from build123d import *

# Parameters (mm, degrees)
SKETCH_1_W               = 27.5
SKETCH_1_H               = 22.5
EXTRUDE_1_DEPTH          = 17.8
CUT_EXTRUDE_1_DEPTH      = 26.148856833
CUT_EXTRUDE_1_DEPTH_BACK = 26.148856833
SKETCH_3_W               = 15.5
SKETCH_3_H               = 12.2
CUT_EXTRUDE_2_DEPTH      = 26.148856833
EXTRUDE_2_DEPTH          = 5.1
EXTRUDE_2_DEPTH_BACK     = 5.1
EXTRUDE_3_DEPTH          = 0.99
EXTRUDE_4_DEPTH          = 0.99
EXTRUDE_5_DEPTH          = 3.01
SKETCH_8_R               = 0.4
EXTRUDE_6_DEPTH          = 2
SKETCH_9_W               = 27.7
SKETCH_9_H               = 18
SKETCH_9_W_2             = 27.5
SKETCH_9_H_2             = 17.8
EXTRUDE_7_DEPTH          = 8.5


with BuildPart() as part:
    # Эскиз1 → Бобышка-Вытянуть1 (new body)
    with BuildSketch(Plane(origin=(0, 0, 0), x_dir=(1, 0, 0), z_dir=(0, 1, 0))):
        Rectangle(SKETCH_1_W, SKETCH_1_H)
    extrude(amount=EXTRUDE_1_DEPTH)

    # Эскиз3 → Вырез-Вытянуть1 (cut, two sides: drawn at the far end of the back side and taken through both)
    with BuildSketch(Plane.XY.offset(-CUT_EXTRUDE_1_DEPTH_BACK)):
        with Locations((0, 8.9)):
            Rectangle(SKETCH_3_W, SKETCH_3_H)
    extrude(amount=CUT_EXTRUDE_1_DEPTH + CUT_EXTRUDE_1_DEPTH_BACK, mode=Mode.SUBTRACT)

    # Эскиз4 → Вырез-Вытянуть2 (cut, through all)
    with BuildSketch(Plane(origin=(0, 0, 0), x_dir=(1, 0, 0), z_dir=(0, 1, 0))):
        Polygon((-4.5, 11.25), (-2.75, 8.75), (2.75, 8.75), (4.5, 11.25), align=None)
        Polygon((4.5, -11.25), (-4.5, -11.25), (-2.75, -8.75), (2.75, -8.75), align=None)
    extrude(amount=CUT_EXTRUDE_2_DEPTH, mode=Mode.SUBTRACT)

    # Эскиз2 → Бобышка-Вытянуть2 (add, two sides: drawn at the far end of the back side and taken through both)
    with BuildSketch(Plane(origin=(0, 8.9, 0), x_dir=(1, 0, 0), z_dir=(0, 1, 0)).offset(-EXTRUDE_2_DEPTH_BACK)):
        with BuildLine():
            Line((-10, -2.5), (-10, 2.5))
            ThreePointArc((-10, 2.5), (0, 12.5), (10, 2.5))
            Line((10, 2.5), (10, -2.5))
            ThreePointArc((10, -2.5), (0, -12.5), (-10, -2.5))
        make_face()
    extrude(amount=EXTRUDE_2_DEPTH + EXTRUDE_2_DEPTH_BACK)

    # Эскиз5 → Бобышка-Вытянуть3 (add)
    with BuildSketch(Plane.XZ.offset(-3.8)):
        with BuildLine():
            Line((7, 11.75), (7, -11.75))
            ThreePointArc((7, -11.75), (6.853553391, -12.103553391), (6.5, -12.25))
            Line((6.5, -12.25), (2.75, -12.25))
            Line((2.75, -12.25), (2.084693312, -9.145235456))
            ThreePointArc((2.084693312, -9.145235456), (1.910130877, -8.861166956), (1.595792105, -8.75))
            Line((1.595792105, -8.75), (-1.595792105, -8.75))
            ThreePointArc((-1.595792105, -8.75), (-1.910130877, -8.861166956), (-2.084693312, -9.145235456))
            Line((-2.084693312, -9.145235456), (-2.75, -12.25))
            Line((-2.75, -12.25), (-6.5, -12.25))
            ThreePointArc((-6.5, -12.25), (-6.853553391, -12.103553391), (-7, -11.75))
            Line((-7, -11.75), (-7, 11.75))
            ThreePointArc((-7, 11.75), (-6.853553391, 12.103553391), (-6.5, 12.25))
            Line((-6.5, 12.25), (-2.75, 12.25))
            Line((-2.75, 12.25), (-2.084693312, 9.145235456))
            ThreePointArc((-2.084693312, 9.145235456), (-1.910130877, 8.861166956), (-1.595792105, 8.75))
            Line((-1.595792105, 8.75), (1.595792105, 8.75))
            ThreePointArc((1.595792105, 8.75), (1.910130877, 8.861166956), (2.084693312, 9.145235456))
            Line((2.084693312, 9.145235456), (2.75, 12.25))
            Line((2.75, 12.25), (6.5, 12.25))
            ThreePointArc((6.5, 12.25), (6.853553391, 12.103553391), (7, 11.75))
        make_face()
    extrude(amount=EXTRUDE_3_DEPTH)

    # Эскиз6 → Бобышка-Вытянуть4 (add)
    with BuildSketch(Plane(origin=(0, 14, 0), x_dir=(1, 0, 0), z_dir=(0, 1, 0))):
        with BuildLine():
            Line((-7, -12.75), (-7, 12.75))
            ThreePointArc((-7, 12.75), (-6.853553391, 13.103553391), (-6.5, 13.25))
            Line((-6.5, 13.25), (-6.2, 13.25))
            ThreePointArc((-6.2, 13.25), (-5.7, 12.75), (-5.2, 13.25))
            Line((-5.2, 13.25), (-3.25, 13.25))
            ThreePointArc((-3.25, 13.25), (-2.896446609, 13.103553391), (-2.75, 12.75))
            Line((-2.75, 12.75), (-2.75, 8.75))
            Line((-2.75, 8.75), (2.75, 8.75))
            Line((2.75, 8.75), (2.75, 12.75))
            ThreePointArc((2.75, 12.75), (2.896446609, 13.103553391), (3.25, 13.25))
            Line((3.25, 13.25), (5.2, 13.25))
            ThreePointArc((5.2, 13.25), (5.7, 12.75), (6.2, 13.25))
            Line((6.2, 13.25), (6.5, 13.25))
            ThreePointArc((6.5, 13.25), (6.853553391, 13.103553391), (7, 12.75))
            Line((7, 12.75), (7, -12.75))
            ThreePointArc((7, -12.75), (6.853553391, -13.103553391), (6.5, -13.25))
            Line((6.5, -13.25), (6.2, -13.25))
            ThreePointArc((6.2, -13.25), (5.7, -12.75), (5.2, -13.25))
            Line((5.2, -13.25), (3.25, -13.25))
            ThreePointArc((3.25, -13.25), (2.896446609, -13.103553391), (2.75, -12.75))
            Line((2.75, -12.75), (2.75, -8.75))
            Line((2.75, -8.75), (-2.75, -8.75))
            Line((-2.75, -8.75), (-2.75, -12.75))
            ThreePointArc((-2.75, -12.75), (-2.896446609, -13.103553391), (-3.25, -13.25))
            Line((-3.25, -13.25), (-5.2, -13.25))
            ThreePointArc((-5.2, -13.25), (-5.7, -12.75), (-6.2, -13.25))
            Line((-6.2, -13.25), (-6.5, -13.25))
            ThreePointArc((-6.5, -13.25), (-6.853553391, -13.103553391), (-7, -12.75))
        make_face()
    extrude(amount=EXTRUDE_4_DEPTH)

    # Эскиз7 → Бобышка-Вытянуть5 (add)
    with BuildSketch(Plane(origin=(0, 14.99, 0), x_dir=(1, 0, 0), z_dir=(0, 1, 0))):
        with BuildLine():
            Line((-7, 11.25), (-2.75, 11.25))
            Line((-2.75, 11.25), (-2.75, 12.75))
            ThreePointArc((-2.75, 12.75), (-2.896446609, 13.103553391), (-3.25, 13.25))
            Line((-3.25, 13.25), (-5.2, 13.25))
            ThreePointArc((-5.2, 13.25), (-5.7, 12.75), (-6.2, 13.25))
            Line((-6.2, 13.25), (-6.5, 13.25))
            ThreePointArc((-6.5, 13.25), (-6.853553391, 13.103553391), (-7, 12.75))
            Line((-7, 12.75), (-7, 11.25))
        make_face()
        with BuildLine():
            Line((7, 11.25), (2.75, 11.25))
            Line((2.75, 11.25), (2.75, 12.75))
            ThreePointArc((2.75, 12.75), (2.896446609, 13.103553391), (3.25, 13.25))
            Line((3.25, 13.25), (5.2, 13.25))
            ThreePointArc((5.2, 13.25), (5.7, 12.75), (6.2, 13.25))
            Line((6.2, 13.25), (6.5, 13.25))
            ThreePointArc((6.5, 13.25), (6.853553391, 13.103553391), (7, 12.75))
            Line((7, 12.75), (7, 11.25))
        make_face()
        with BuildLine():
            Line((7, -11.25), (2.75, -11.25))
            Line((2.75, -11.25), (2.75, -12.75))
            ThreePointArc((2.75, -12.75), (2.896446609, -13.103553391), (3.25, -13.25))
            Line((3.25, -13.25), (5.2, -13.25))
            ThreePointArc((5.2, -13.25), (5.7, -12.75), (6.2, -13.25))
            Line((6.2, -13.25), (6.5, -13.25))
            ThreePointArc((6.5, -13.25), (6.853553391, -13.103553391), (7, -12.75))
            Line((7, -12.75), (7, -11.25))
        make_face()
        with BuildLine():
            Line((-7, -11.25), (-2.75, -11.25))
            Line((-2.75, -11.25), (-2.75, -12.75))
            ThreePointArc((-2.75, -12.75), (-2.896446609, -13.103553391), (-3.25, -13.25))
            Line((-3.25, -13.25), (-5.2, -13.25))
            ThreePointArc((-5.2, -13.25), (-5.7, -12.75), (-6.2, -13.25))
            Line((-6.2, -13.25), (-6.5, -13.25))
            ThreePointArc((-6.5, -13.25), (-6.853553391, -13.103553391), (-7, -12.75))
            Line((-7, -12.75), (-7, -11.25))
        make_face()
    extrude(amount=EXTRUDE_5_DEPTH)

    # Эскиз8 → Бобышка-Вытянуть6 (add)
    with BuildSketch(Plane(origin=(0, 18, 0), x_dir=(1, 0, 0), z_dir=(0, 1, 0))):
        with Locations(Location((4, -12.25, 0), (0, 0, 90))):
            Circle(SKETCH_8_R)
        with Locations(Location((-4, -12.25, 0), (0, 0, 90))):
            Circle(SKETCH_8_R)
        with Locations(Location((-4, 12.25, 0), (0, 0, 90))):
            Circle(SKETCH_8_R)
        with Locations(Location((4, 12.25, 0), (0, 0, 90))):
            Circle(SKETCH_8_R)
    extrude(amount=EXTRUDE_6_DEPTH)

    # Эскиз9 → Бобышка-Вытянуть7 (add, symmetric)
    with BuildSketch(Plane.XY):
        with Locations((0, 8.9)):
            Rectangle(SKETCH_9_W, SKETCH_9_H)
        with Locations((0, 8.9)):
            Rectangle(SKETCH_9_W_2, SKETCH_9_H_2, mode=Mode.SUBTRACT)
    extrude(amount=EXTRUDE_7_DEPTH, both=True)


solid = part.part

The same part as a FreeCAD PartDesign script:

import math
import FreeCAD as App
import Part
import Sketcher
from FreeCAD import Vector
Q = App.Units.Quantity

doc = App.newDocument("Part")
params = doc.addObject("Spreadsheet::Sheet", "Params")
for row, (alias, value) in enumerate([
    ("sketch1_width", "27.5 mm"),
    ("sketch1_height", "22.5 mm"),
    ("pad1_length", "17.8 mm"),
    ("sketch2_width", "15.5 mm"),
    ("sketch2_height", "12.2 mm"),
    ("sketch3_width", "9 mm"),
    ("sketch3_width2", "5.5 mm"),
    ("sketch4_radius", "10 mm"),
    ("sketch4_height", "5 mm"),
    ("pad2_length", "5.1 mm"),
    ("pad2_length2", "5.1 mm"),
    ("sketch5_radius", "0.5 mm"),
    ("sketch5_height", "23.5 mm"),
    ("sketch5_width", "3.75 mm"),
    ("pad3_length", "0.99 mm"),
    ("sketch6_radius", "0.5 mm"),
    ("sketch6_height", "4 mm"),
    ("sketch6_width", "0.3 mm"),
    ("sketch6_width2", "5.5 mm"),
    ("sketch6_height2", "25.5 mm"),
    ("pad4_length", "0.99 mm"),
    ("sketch7_radius", "0.5 mm"),
    ("sketch7_width", "0.3 mm"),
    ("sketch7_height", "1.5 mm"),
    ("pad5_length", "3.01 mm"),
    ("sketch8_diameter", "0.8 mm"),
    ("pad6_length", "2 mm"),
    ("sketch9_height", "18 mm"),
    ("sketch9_width", "27.7 mm"),
    ("sketch9_width2", "27.5 mm"),
    ("sketch9_height2", "17.8 mm"),
    ("pad7_length", "17 mm"),
], start=1):
    params.set(f"A{row}", alias)
    params.set(f"B{row}", "=" + value)
    params.setAlias(f"B{row}", alias)

body = doc.addObject("PartDesign::Body", "Body")

# Sketch on XZ plane
sketch1 = doc.addObject("Sketcher::SketchObject", "Sketch")
body.addObject(sketch1)
sketch1.AttachmentSupport = (doc.XZ_Plane, [""])
sketch1.MapMode = "FlatFace"
sketch1.addGeometry(Part.LineSegment(Vector(-14, -11, 0), Vector(-14, 11, 0)), False)
sketch1.addGeometry(Part.LineSegment(Vector(-14, 11, 0), Vector(14, 11, 0)), False)
sketch1.addGeometry(Part.LineSegment(Vector(14, 11, 0), Vector(14, -11, 0)), False)
sketch1.addGeometry(Part.LineSegment(Vector(14, -11, 0), Vector(-14, -11, 0)), False)
sketch1.addConstraint(Sketcher.Constraint("Coincident", 0, 2, 1, 1))
sketch1.addConstraint(Sketcher.Constraint("Coincident", 1, 2, 2, 1))
sketch1.addConstraint(Sketcher.Constraint("Coincident", 2, 2, 3, 1))
sketch1.addConstraint(Sketcher.Constraint("Coincident", 3, 2, 0, 1))
sketch1.addConstraint(Sketcher.Constraint("Vertical", 0))
sketch1.addConstraint(Sketcher.Constraint("Horizontal", 1))
sketch1.addConstraint(Sketcher.Constraint("Vertical", 2))
sketch1.addConstraint(Sketcher.Constraint("Horizontal", 3))
sketch1.addConstraint(Sketcher.Constraint("Symmetric", 0, 2, 2, 2, -1, 1))
sketch1.addConstraint(Sketcher.Constraint("DistanceX", 1, 1, 1, 2, Q("27.5 mm")))
sketch1.addConstraint(Sketcher.Constraint("DistanceY", 0, 1, 0, 2, Q("22.5 mm")))
sketch1.setExpression("Constraints[9]", "Params.sketch1_width")
sketch1.setExpression("Constraints[10]", "Params.sketch1_height")
pad1 = doc.addObject("PartDesign::Pad", "Pad")
body.addObject(pad1)
pad1.Profile = sketch1
pad1.setExpression("Length", "Params.pad1_length")
pad1.Reversed = True

# Sketch on XY plane
sketch2 = doc.addObject("Sketcher::SketchObject", "Sketch001")
body.addObject(sketch2)
sketch2.AttachmentSupport = (doc.XY_Plane, [""])
sketch2.MapMode = "FlatFace"
sketch2.addGeometry(Part.LineSegment(Vector(-8, 15, 0), Vector(-8, 3, 0)), False)
sketch2.addGeometry(Part.LineSegment(Vector(-8, 3, 0), Vector(8, 3, 0)), False)
sketch2.addGeometry(Part.LineSegment(Vector(8, 3, 0), Vector(8, 15, 0)), False)
sketch2.addGeometry(Part.LineSegment(Vector(8, 15, 0), Vector(-8, 15, 0)), False)
sketch2.addConstraint(Sketcher.Constraint("Coincident", 0, 2, 1, 1))
sketch2.addConstraint(Sketcher.Constraint("Coincident", 1, 2, 2, 1))
sketch2.addConstraint(Sketcher.Constraint("Coincident", 2, 2, 3, 1))
sketch2.addConstraint(Sketcher.Constraint("Coincident", 3, 2, 0, 1))
sketch2.addConstraint(Sketcher.Constraint("Vertical", 0))
sketch2.addConstraint(Sketcher.Constraint("Horizontal", 1))
sketch2.addConstraint(Sketcher.Constraint("Vertical", 2))
sketch2.addConstraint(Sketcher.Constraint("Horizontal", 3))
sketch2.addConstraint(Sketcher.Constraint("DistanceX", 1, 1, 1, 2, Q("15.5 mm")))
sketch2.addConstraint(Sketcher.Constraint("DistanceY", 0, 2, 0, 1, Q("12.2 mm")))
sketch2.addConstraint(Sketcher.Constraint("DistanceY", -1, 1, 2, 2, Q("15 mm")))
sketch2.addConstraint(Sketcher.Constraint("DistanceX", 0, 2, -1, 1, Q("7.75 mm")))
sketch2.setExpression("Constraints[8]", "Params.sketch2_width")
sketch2.setExpression("Constraints[9]", "Params.sketch2_height")
pocket1 = doc.addObject("PartDesign::Pocket", "Pocket")
body.addObject(pocket1)
pocket1.Profile = sketch2
pocket1.Type = "ThroughAll"
pocket1.Midplane = True

# Sketch on XZ plane
sketch3 = doc.addObject("Sketcher::SketchObject", "Sketch002")
body.addObject(sketch3)
sketch3.AttachmentSupport = (doc.XZ_Plane, [""])
sketch3.MapMode = "FlatFace"
sketch3.addGeometry(Part.LineSegment(Vector(-4.5, -11.2, 0), Vector(-2.8, -8.8, 0)), False)
sketch3.addGeometry(Part.LineSegment(Vector(-2.8, -8.8, 0), Vector(2.8, -8.8, 0)), False)
sketch3.addGeometry(Part.LineSegment(Vector(2.8, -8.8, 0), Vector(4.5, -11.2, 0)), False)
sketch3.addGeometry(Part.LineSegment(Vector(4.5, -11.2, 0), Vector(-4.5, -11.2, 0)), False)
sketch3.addGeometry(Part.LineSegment(Vector(-4.5, 11.2, 0), Vector(4.5, 11.2, 0)), False)
sketch3.addGeometry(Part.LineSegment(Vector(4.5, 11.2, 0), Vector(2.8, 8.8, 0)), False)
sketch3.addGeometry(Part.LineSegment(Vector(2.8, 8.8, 0), Vector(-2.8, 8.8, 0)), False)
sketch3.addGeometry(Part.LineSegment(Vector(-2.8, 8.8, 0), Vector(-4.5, 11.2, 0)), False)
sketch3.addConstraint(Sketcher.Constraint("Coincident", 0, 2, 1, 1))
sketch3.addConstraint(Sketcher.Constraint("Coincident", 1, 2, 2, 1))
sketch3.addConstraint(Sketcher.Constraint("Coincident", 2, 2, 3, 1))
sketch3.addConstraint(Sketcher.Constraint("Coincident", 3, 2, 0, 1))
sketch3.addConstraint(Sketcher.Constraint("Coincident", 4, 2, 5, 1))
sketch3.addConstraint(Sketcher.Constraint("Coincident", 5, 2, 6, 1))
sketch3.addConstraint(Sketcher.Constraint("Coincident", 6, 2, 7, 1))
sketch3.addConstraint(Sketcher.Constraint("Coincident", 7, 2, 4, 1))
sketch3.addConstraint(Sketcher.Constraint("Horizontal", 1))
sketch3.addConstraint(Sketcher.Constraint("Horizontal", 3))
sketch3.addConstraint(Sketcher.Constraint("Horizontal", 4))
sketch3.addConstraint(Sketcher.Constraint("Horizontal", 6))
sketch3.addConstraint(Sketcher.Constraint("Symmetric", 3, 2, 4, 2, -1, 1))
sketch3.addConstraint(Sketcher.Constraint("Symmetric", 0, 2, 5, 2, -1, 1))
sketch3.addConstraint(Sketcher.Constraint("Parallel", 2, 7))
sketch3.addConstraint(Sketcher.Constraint("Vertical", 2, 2, 4, 2))
sketch3.addConstraint(Sketcher.Constraint("Vertical", 1, 2, 5, 2))
sketch3.addConstraint(Sketcher.Constraint("Vertical", 0, 2, 6, 2))
sketch3.addConstraint(Sketcher.Constraint("DistanceX", 3, 2, 3, 1, Q("9 mm")))
sketch3.addConstraint(Sketcher.Constraint("DistanceX", 1, 1, 1, 2, Q("5.5 mm")))
sketch3.addConstraint(Sketcher.Constraint("DistanceY", 1, 2, 4, 2, Q("20 mm")))
sketch3.addConstraint(Sketcher.Constraint("DistanceY", 2, 2, 1, 2, Q("2.5 mm")))
sketch3.setExpression("Constraints[18]", "Params.sketch3_width")
sketch3.setExpression("Constraints[19]", "Params.sketch3_width2")
pocket2 = doc.addObject("PartDesign::Pocket", "Pocket001")
body.addObject(pocket2)
pocket2.Profile = sketch3
pocket2.Type = "ThroughAll"

# Sketch on XZ plane
sketch4 = doc.addObject("Sketcher::SketchObject", "Sketch003")
body.addObject(sketch4)
sketch4.AttachmentSupport = (doc.XZ_Plane, [""])
sketch4.MapMode = "FlatFace"
sketch4.AttachmentOffset = App.Placement(Vector(0, 0, -8.9), App.Rotation())
sketch4.addGeometry(Part.LineSegment(Vector(-10, -2, 0), Vector(-10, 2, 0)), False)
sketch4.addGeometry(Part.ArcOfCircle(Part.Circle(Vector(0, 2, 0), Vector(0, 0, 1), 10), math.radians(0), math.radians(180)), False)
sketch4.addGeometry(Part.LineSegment(Vector(10, 2, 0), Vector(10, -2, 0)), False)
sketch4.addGeometry(Part.ArcOfCircle(Part.Circle(Vector(0, -2, 0), Vector(0, 0, 1), 10), math.radians(180), math.radians(360)), False)
sketch4.addConstraint(Sketcher.Constraint("Tangent", 0, 2, 1, 2))
sketch4.addConstraint(Sketcher.Constraint("Tangent", 1, 1, 2, 1))
sketch4.addConstraint(Sketcher.Constraint("Tangent", 2, 2, 3, 2))
sketch4.addConstraint(Sketcher.Constraint("Tangent", 3, 1, 0, 1))
sketch4.addConstraint(Sketcher.Constraint("Vertical", 0))
sketch4.addConstraint(Sketcher.Constraint("Vertical", 2))
sketch4.addConstraint(Sketcher.Constraint("Symmetric", 1, 3, 3, 3, -1, 1))
sketch4.addConstraint(Sketcher.Constraint("Radius", 1, Q("10 mm")))
sketch4.addConstraint(Sketcher.Constraint("DistanceY", 0, 1, 0, 2, Q("5 mm")))
sketch4.setExpression("Constraints[7]", "Params.sketch4_radius")
sketch4.setExpression("Constraints[8]", "Params.sketch4_height")
pad2 = doc.addObject("PartDesign::Pad", "Pad001")
body.addObject(pad2)
pad2.Profile = sketch4
pad2.Type = "TwoLengths"
pad2.setExpression("Length", "Params.pad2_length")
pad2.setExpression("Length2", "Params.pad2_length2")
pad2.Reversed = True

# Sketch on XZ plane
sketch5 = doc.addObject("Sketcher::SketchObject", "Sketch004")
body.addObject(sketch5)
sketch5.AttachmentSupport = (doc.XZ_Plane, [""])
sketch5.MapMode = "FlatFace"
sketch5.AttachmentOffset = App.Placement(Vector(0, 0, -3.8), App.Rotation())
sketch5.addGeometry(Part.LineSegment(Vector(7, -11.75, 0), Vector(7, 11.75, 0)), False)
sketch5.addGeometry(Part.ArcOfCircle(Part.Circle(Vector(6.5, 11.75, 0), Vector(0, 0, 1), 0.5), math.radians(0), math.radians(90)), False)
sketch5.addGeometry(Part.LineSegment(Vector(6.5, 12.25, 0), Vector(2.75, 12.25, 0)), False)
sketch5.addGeometry(Part.LineSegment(Vector(2.75, 12.25, 0), Vector(2.08, 9.15, 0)), False)
sketch5.addGeometry(Part.ArcOfCircle(Part.Circle(Vector(1.6, 9.25, 0), Vector(0, 0, 1), 0.5), math.radians(-90), math.radians(-12)), False)
sketch5.addGeometry(Part.LineSegment(Vector(1.6, 8.75, 0), Vector(-1.6, 8.75, 0)), False)
sketch5.addGeometry(Part.ArcOfCircle(Part.Circle(Vector(-1.6, 9.25, 0), Vector(0, 0, 1), 0.5), math.radians(-168), math.radians(-90)), False)
sketch5.addGeometry(Part.LineSegment(Vector(-2.08, 9.15, 0), Vector(-2.75, 12.25, 0)), False)
sketch5.addGeometry(Part.LineSegment(Vector(-2.75, 12.25, 0), Vector(-6.5, 12.25, 0)), False)
sketch5.addGeometry(Part.ArcOfCircle(Part.Circle(Vector(-6.5, 11.75, 0), Vector(0, 0, 1), 0.5), math.radians(90), math.radians(180)), False)
sketch5.addGeometry(Part.LineSegment(Vector(-7, 11.75, 0), Vector(-7, -11.75, 0)), False)
sketch5.addGeometry(Part.ArcOfCircle(Part.Circle(Vector(-6.5, -11.75, 0), Vector(0, 0, 1), 0.5), math.radians(180), math.radians(270)), False)
sketch5.addGeometry(Part.LineSegment(Vector(-6.5, -12.25, 0), Vector(-2.75, -12.25, 0)), False)
sketch5.addGeometry(Part.LineSegment(Vector(-2.75, -12.25, 0), Vector(-2.08, -9.15, 0)), False)
sketch5.addGeometry(Part.ArcOfCircle(Part.Circle(Vector(-1.6, -9.25, 0), Vector(0, 0, 1), 0.5), math.radians(90), math.radians(168)), False)
sketch5.addGeometry(Part.LineSegment(Vector(-1.6, -8.75, 0), Vector(1.6, -8.75, 0)), False)
sketch5.addGeometry(Part.ArcOfCircle(Part.Circle(Vector(1.6, -9.25, 0), Vector(0, 0, 1), 0.5), math.radians(12), math.radians(90)), False)
sketch5.addGeometry(Part.LineSegment(Vector(2.08, -9.15, 0), Vector(2.75, -12.25, 0)), False)
sketch5.addGeometry(Part.LineSegment(Vector(2.75, -12.25, 0), Vector(6.5, -12.25, 0)), False)
sketch5.addGeometry(Part.ArcOfCircle(Part.Circle(Vector(6.5, -11.75, 0), Vector(0, 0, 1), 0.5), math.radians(-90), math.radians(0)), False)
sketch5.addConstraint(Sketcher.Constraint("Tangent", 0, 2, 1, 1))
sketch5.addConstraint(Sketcher.Constraint("Tangent", 1, 2, 2, 1))
sketch5.addConstraint(Sketcher.Constraint("Coincident", 2, 2, 3, 1))
sketch5.addConstraint(Sketcher.Constraint("Tangent", 3, 2, 4, 2))
sketch5.addConstraint(Sketcher.Constraint("Tangent", 4, 1, 5, 1))
sketch5.addConstraint(Sketcher.Constraint("Tangent", 5, 2, 6, 2))
sketch5.addConstraint(Sketcher.Constraint("Tangent", 6, 1, 7, 1))
sketch5.addConstraint(Sketcher.Constraint("Coincident", 7, 2, 8, 1))
sketch5.addConstraint(Sketcher.Constraint("Tangent", 8, 2, 9, 1))
sketch5.addConstraint(Sketcher.Constraint("Tangent", 9, 2, 10, 1))
sketch5.addConstraint(Sketcher.Constraint("Tangent", 10, 2, 11, 1))
sketch5.addConstraint(Sketcher.Constraint("Tangent", 11, 2, 12, 1))
sketch5.addConstraint(Sketcher.Constraint("Coincident", 12, 2, 13, 1))
sketch5.addConstraint(Sketcher.Constraint("Tangent", 13, 2, 14, 2))
sketch5.addConstraint(Sketcher.Constraint("Tangent", 14, 1, 15, 1))
sketch5.addConstraint(Sketcher.Constraint("Tangent", 15, 2, 16, 2))
sketch5.addConstraint(Sketcher.Constraint("Tangent", 16, 1, 17, 1))
sketch5.addConstraint(Sketcher.Constraint("Coincident", 17, 2, 18, 1))
sketch5.addConstraint(Sketcher.Constraint("Tangent", 18, 2, 19, 1))
sketch5.addConstraint(Sketcher.Constraint("Tangent", 19, 2, 0, 1))
sketch5.addConstraint(Sketcher.Constraint("Vertical", 0))
sketch5.addConstraint(Sketcher.Constraint("Horizontal", 2))
sketch5.addConstraint(Sketcher.Constraint("Horizontal", 5))
sketch5.addConstraint(Sketcher.Constraint("Horizontal", 8))
sketch5.addConstraint(Sketcher.Constraint("Vertical", 10))
sketch5.addConstraint(Sketcher.Constraint("Horizontal", 12))
sketch5.addConstraint(Sketcher.Constraint("Horizontal", 15))
sketch5.addConstraint(Sketcher.Constraint("Horizontal", 18))
sketch5.addConstraint(Sketcher.Constraint("Equal", 1, 4))
sketch5.addConstraint(Sketcher.Constraint("Equal", 4, 6))
sketch5.addConstraint(Sketcher.Constraint("Equal", 6, 9))
sketch5.addConstraint(Sketcher.Constraint("Equal", 9, 11))
sketch5.addConstraint(Sketcher.Constraint("Equal", 11, 14))
sketch5.addConstraint(Sketcher.Constraint("Equal", 14, 16))
sketch5.addConstraint(Sketcher.Constraint("Equal", 16, 19))
sketch5.addConstraint(Sketcher.Constraint("Symmetric", 1, 3, 11, 3, -1, 1))
sketch5.addConstraint(Sketcher.Constraint("Symmetric", 4, 3, 14, 3, -1, 1))
sketch5.addConstraint(Sketcher.Constraint("Symmetric", 6, 1, 16, 1, -1, 1))
sketch5.addConstraint(Sketcher.Constraint("Symmetric", 3, 2, 6, 1, -2))
sketch5.addConstraint(Sketcher.Constraint("Symmetric", 12, 2, 17, 2, -2))
sketch5.addConstraint(Sketcher.Constraint("Horizontal", 1, 3, 9, 3))
sketch5.addConstraint(Sketcher.Constraint("Radius", 1, Q("0.5 mm")))
sketch5.addConstraint(Sketcher.Constraint("DistanceY", 0, 1, 0, 2, Q("23.5 mm")))
sketch5.addConstraint(Sketcher.Constraint("DistanceX", -1, 1, 0, 2, Q("7 mm")))
sketch5.addConstraint(Sketcher.Constraint("DistanceY", 11, 3, 6, 3, Q("21 mm")))
sketch5.addConstraint(Sketcher.Constraint("DistanceX", 2, 2, 2, 1, Q("3.75 mm")))
sketch5.addConstraint(Sketcher.Constraint("DistanceX", 4, 3, 3, 2, Q("0.488901 mm")))
sketch5.setExpression("Constraints[41]", "Params.sketch5_radius")
sketch5.setExpression("Constraints[42]", "Params.sketch5_height")
sketch5.setExpression("Constraints[45]", "Params.sketch5_width")
pad3 = doc.addObject("PartDesign::Pad", "Pad002")
body.addObject(pad3)
pad3.Profile = sketch5
pad3.setExpression("Length", "Params.pad3_length")

# Sketch on XZ plane
sketch6 = doc.addObject("Sketcher::SketchObject", "Sketch005")
body.addObject(sketch6)
sketch6.AttachmentSupport = (doc.XZ_Plane, [""])
sketch6.MapMode = "FlatFace"
sketch6.AttachmentOffset = App.Placement(Vector(0, 0, -14), App.Rotation())
sketch6.addGeometry(Part.LineSegment(Vector(-7, -12.75, 0), Vector(-7, 12.75, 0)), False)
sketch6.addGeometry(Part.ArcOfCircle(Part.Circle(Vector(-6.5, 12.75, 0), Vector(0, 0, 1), 0.5), math.radians(90), math.radians(180)), False)
sketch6.addGeometry(Part.LineSegment(Vector(-6.5, 13.25, 0), Vector(-6.2, 13.25, 0)), False)
sketch6.addGeometry(Part.ArcOfCircle(Part.Circle(Vector(-5.7, 13.25, 0), Vector(0, 0, 1), 0.5), math.radians(180), math.radians(360)), False)
sketch6.addGeometry(Part.LineSegment(Vector(-5.2, 13.25, 0), Vector(-3.25, 13.25, 0)), False)
sketch6.addGeometry(Part.ArcOfCircle(Part.Circle(Vector(-3.25, 12.75, 0), Vector(0, 0, 1), 0.5), math.radians(0), math.radians(90)), False)
sketch6.addGeometry(Part.LineSegment(Vector(-2.75, 12.75, 0), Vector(-2.75, 8.75, 0)), False)
sketch6.addGeometry(Part.LineSegment(Vector(-2.75, 8.75, 0), Vector(2.75, 8.75, 0)), False)
sketch6.addGeometry(Part.LineSegment(Vector(2.75, 8.75, 0), Vector(2.75, 12.75, 0)), False)
sketch6.addGeometry(Part.ArcOfCircle(Part.Circle(Vector(3.25, 12.75, 0), Vector(0, 0, 1), 0.5), math.radians(90), math.radians(180)), False)
sketch6.addGeometry(Part.LineSegment(Vector(3.25, 13.25, 0), Vector(5.2, 13.25, 0)), False)
sketch6.addGeometry(Part.ArcOfCircle(Part.Circle(Vector(5.7, 13.25, 0), Vector(0, 0, 1), 0.5), math.radians(180), math.radians(360)), False)
sketch6.addGeometry(Part.LineSegment(Vector(6.2, 13.25, 0), Vector(6.5, 13.25, 0)), False)
sketch6.addGeometry(Part.ArcOfCircle(Part.Circle(Vector(6.5, 12.75, 0), Vector(0, 0, 1), 0.5), math.radians(0), math.radians(90)), False)
sketch6.addGeometry(Part.LineSegment(Vector(7, 12.75, 0), Vector(7, -12.75, 0)), False)
sketch6.addGeometry(Part.ArcOfCircle(Part.Circle(Vector(6.5, -12.75, 0), Vector(0, 0, 1), 0.5), math.radians(-90), math.radians(0)), False)
sketch6.addGeometry(Part.LineSegment(Vector(6.5, -13.25, 0), Vector(6.2, -13.25, 0)), False)
sketch6.addGeometry(Part.ArcOfCircle(Part.Circle(Vector(5.7, -13.25, 0), Vector(0, 0, 1), 0.5), math.radians(0), math.radians(180)), False)
sketch6.addGeometry(Part.LineSegment(Vector(5.2, -13.25, 0), Vector(3.25, -13.25, 0)), False)
sketch6.addGeometry(Part.ArcOfCircle(Part.Circle(Vector(3.25, -12.75, 0), Vector(0, 0, 1), 0.5), math.radians(180), math.radians(270)), False)
sketch6.addGeometry(Part.LineSegment(Vector(2.75, -12.75, 0), Vector(2.75, -8.75, 0)), False)
sketch6.addGeometry(Part.LineSegment(Vector(2.75, -8.75, 0), Vector(-2.75, -8.75, 0)), False)
sketch6.addGeometry(Part.LineSegment(Vector(-2.75, -8.75, 0), Vector(-2.75, -12.75, 0)), False)
sketch6.addGeometry(Part.ArcOfCircle(Part.Circle(Vector(-3.25, -12.75, 0), Vector(0, 0, 1), 0.5), math.radians(-90), math.radians(0)), False)
sketch6.addGeometry(Part.LineSegment(Vector(-3.25, -13.25, 0), Vector(-5.2, -13.25, 0)), False)
sketch6.addGeometry(Part.ArcOfCircle(Part.Circle(Vector(-5.7, -13.25, 0), Vector(0, 0, 1), 0.5), math.radians(0), math.radians(180)), False)
sketch6.addGeometry(Part.LineSegment(Vector(-6.2, -13.25, 0), Vector(-6.5, -13.25, 0)), False)
sketch6.addGeometry(Part.ArcOfCircle(Part.Circle(Vector(-6.5, -12.75, 0), Vector(0, 0, 1), 0.5), math.radians(180), math.radians(270)), False)
sketch6.addConstraint(Sketcher.Constraint("Tangent", 0, 2, 1, 2))
sketch6.addConstraint(Sketcher.Constraint("Tangent", 1, 1, 2, 1))
sketch6.addConstraint(Sketcher.Constraint("Coincident", 2, 2, 3, 1))
sketch6.addConstraint(Sketcher.Constraint("Coincident", 3, 2, 4, 1))
sketch6.addConstraint(Sketcher.Constraint("Tangent", 4, 2, 5, 2))
sketch6.addConstraint(Sketcher.Constraint("Tangent", 5, 1, 6, 1))
sketch6.addConstraint(Sketcher.Constraint("Coincident", 6, 2, 7, 1))
sketch6.addConstraint(Sketcher.Constraint("Coincident", 7, 2, 8, 1))
sketch6.addConstraint(Sketcher.Constraint("Tangent", 8, 2, 9, 2))
sketch6.addConstraint(Sketcher.Constraint("Tangent", 9, 1, 10, 1))
sketch6.addConstraint(Sketcher.Constraint("Coincident", 10, 2, 11, 1))
sketch6.addConstraint(Sketcher.Constraint("Coincident", 11, 2, 12, 1))
sketch6.addConstraint(Sketcher.Constraint("Tangent", 12, 2, 13, 2))
sketch6.addConstraint(Sketcher.Constraint("Tangent", 13, 1, 14, 1))
sketch6.addConstraint(Sketcher.Constraint("Tangent", 14, 2, 15, 2))
sketch6.addConstraint(Sketcher.Constraint("Tangent", 15, 1, 16, 1))
sketch6.addConstraint(Sketcher.Constraint("Coincident", 16, 2, 17, 1))
sketch6.addConstraint(Sketcher.Constraint("Coincident", 17, 2, 18, 1))
sketch6.addConstraint(Sketcher.Constraint("Tangent", 18, 2, 19, 2))
sketch6.addConstraint(Sketcher.Constraint("Tangent", 19, 1, 20, 1))
sketch6.addConstraint(Sketcher.Constraint("Coincident", 20, 2, 21, 1))
sketch6.addConstraint(Sketcher.Constraint("Coincident", 21, 2, 22, 1))
sketch6.addConstraint(Sketcher.Constraint("Tangent", 22, 2, 23, 2))
sketch6.addConstraint(Sketcher.Constraint("Tangent", 23, 1, 24, 1))
sketch6.addConstraint(Sketcher.Constraint("Coincident", 24, 2, 25, 1))
sketch6.addConstraint(Sketcher.Constraint("Coincident", 25, 2, 26, 1))
sketch6.addConstraint(Sketcher.Constraint("Tangent", 26, 2, 27, 2))
sketch6.addConstraint(Sketcher.Constraint("Tangent", 27, 1, 0, 1))
sketch6.addConstraint(Sketcher.Constraint("Vertical", 0))
sketch6.addConstraint(Sketcher.Constraint("Horizontal", 2))
sketch6.addConstraint(Sketcher.Constraint("Horizontal", 4))
sketch6.addConstraint(Sketcher.Constraint("Vertical", 6))
sketch6.addConstraint(Sketcher.Constraint("Horizontal", 7))
sketch6.addConstraint(Sketcher.Constraint("Vertical", 8))
sketch6.addConstraint(Sketcher.Constraint("Horizontal", 10))
sketch6.addConstraint(Sketcher.Constraint("Horizontal", 12))
sketch6.addConstraint(Sketcher.Constraint("Vertical", 14))
sketch6.addConstraint(Sketcher.Constraint("Horizontal", 16))
sketch6.addConstraint(Sketcher.Constraint("Horizontal", 18))
sketch6.addConstraint(Sketcher.Constraint("Vertical", 20))
sketch6.addConstraint(Sketcher.Constraint("Horizontal", 21))
sketch6.addConstraint(Sketcher.Constraint("Vertical", 22))
sketch6.addConstraint(Sketcher.Constraint("Horizontal", 24))
sketch6.addConstraint(Sketcher.Constraint("Horizontal", 26))
sketch6.addConstraint(Sketcher.Constraint("Equal", 1, 3))
sketch6.addConstraint(Sketcher.Constraint("Equal", 3, 5))
sketch6.addConstraint(Sketcher.Constraint("Equal", 5, 9))
sketch6.addConstraint(Sketcher.Constraint("Equal", 9, 11))
sketch6.addConstraint(Sketcher.Constraint("Equal", 11, 13))
sketch6.addConstraint(Sketcher.Constraint("Equal", 13, 15))
sketch6.addConstraint(Sketcher.Constraint("Equal", 15, 17))
sketch6.addConstraint(Sketcher.Constraint("Equal", 17, 19))
sketch6.addConstraint(Sketcher.Constraint("Equal", 19, 23))
sketch6.addConstraint(Sketcher.Constraint("Equal", 23, 25))
sketch6.addConstraint(Sketcher.Constraint("Equal", 25, 27))
sketch6.addConstraint(Sketcher.Constraint("Symmetric", 1, 3, 15, 3, -1, 1))
sketch6.addConstraint(Sketcher.Constraint("Symmetric", 3, 3, 17, 3, -1, 1))
sketch6.addConstraint(Sketcher.Constraint("Symmetric", 5, 3, 19, 3, -1, 1))
sketch6.addConstraint(Sketcher.Constraint("Symmetric", 9, 3, 23, 3, -1, 1))
sketch6.addConstraint(Sketcher.Constraint("Symmetric", 11, 3, 25, 3, -1, 1))
sketch6.addConstraint(Sketcher.Constraint("Symmetric", 5, 3, 9, 3, -2))
sketch6.addConstraint(Sketcher.Constraint("Symmetric", 3, 3, 11, 3, -2))
sketch6.addConstraint(Sketcher.Constraint("Horizontal", 1, 3, 5, 3))
sketch6.addConstraint(Sketcher.Constraint("Horizontal", 9, 3, 13, 3))
sketch6.addConstraint(Sketcher.Constraint("Horizontal", 23, 3, 27, 3))
sketch6.addConstraint(Sketcher.Constraint("Horizontal", 11, 3, 1, 1))
sketch6.addConstraint(Sketcher.Constraint("Equal", 8, 20))
sketch6.addConstraint(Sketcher.Constraint("Radius", 1, Q("0.5 mm")))
sketch6.addConstraint(Sketcher.Constraint("DistanceY", 6, 2, 6, 1, Q("4 mm")))
sketch6.addConstraint(Sketcher.Constraint("DistanceX", 2, 1, 2, 2, Q("0.3 mm")))
sketch6.addConstraint(Sketcher.Constraint("DistanceX", 7, 1, 7, 2, Q("5.5 mm")))
sketch6.addConstraint(Sketcher.Constraint("DistanceY", 0, 1, 0, 2, Q("25.5 mm")))
sketch6.addConstraint(Sketcher.Constraint("DistanceX", 0, 2, -1, 1, Q("7 mm")))
sketch6.setExpression("Constraints[67]", "Params.sketch6_radius")
sketch6.setExpression("Constraints[68]", "Params.sketch6_height")
sketch6.setExpression("Constraints[69]", "Params.sketch6_width")
sketch6.setExpression("Constraints[70]", "Params.sketch6_width2")
sketch6.setExpression("Constraints[71]", "Params.sketch6_height2")
pad4 = doc.addObject("PartDesign::Pad", "Pad003")
body.addObject(pad4)
pad4.Profile = sketch6
pad4.setExpression("Length", "Params.pad4_length")
pad4.Reversed = True

# Sketch on XZ plane
sketch7 = doc.addObject("Sketcher::SketchObject", "Sketch006")
body.addObject(sketch7)
sketch7.AttachmentSupport = (doc.XZ_Plane, [""])
sketch7.MapMode = "FlatFace"
sketch7.AttachmentOffset = App.Placement(Vector(0, 0, -14.99), App.Rotation())
sketch7.addGeometry(Part.LineSegment(Vector(-7, -11.25, 0), Vector(-2.75, -11.25, 0)), False)
sketch7.addGeometry(Part.LineSegment(Vector(-2.75, -11.25, 0), Vector(-2.75, -12.75, 0)), False)
sketch7.addGeometry(Part.ArcOfCircle(Part.Circle(Vector(-3.25, -12.75, 0), Vector(0, 0, 1), 0.5), math.radians(-90), math.radians(0)), False)
sketch7.addGeometry(Part.LineSegment(Vector(-3.25, -13.25, 0), Vector(-5.2, -13.25, 0)), False)
sketch7.addGeometry(Part.ArcOfCircle(Part.Circle(Vector(-5.7, -13.25, 0), Vector(0, 0, 1), 0.5), math.radians(0), math.radians(180)), False)
sketch7.addGeometry(Part.LineSegment(Vector(-6.2, -13.25, 0), Vector(-6.5, -13.25, 0)), False)
sketch7.addGeometry(Part.ArcOfCircle(Part.Circle(Vector(-6.5, -12.75, 0), Vector(0, 0, 1), 0.5), math.radians(180), math.radians(270)), False)
sketch7.addGeometry(Part.LineSegment(Vector(-7, -12.75, 0), Vector(-7, -11.25, 0)), False)
sketch7.addGeometry(Part.LineSegment(Vector(2.75, -11.25, 0), Vector(7, -11.25, 0)), False)
sketch7.addGeometry(Part.LineSegment(Vector(7, -11.25, 0), Vector(7, -12.75, 0)), False)
sketch7.addGeometry(Part.ArcOfCircle(Part.Circle(Vector(6.5, -12.75, 0), Vector(0, 0, 1), 0.5), math.radians(-90), math.radians(0)), False)
sketch7.addGeometry(Part.LineSegment(Vector(6.5, -13.25, 0), Vector(6.2, -13.25, 0)), False)
sketch7.addGeometry(Part.ArcOfCircle(Part.Circle(Vector(5.7, -13.25, 0), Vector(0, 0, 1), 0.5), math.radians(0), math.radians(180)), False)
sketch7.addGeometry(Part.LineSegment(Vector(5.2, -13.25, 0), Vector(3.25, -13.25, 0)), False)
sketch7.addGeometry(Part.ArcOfCircle(Part.Circle(Vector(3.25, -12.75, 0), Vector(0, 0, 1), 0.5), math.radians(180), math.radians(270)), False)
sketch7.addGeometry(Part.LineSegment(Vector(2.75, -12.75, 0), Vector(2.75, -11.25, 0)), False)
sketch7.addGeometry(Part.LineSegment(Vector(7, 11.25, 0), Vector(2.75, 11.25, 0)), False)
sketch7.addGeometry(Part.LineSegment(Vector(2.75, 11.25, 0), Vector(2.75, 12.75, 0)), False)
sketch7.addGeometry(Part.ArcOfCircle(Part.Circle(Vector(3.25, 12.75, 0), Vector(0, 0, 1), 0.5), math.radians(90), math.radians(180)), False)
sketch7.addGeometry(Part.LineSegment(Vector(3.25, 13.25, 0), Vector(5.2, 13.25, 0)), False)
sketch7.addGeometry(Part.ArcOfCircle(Part.Circle(Vector(5.7, 13.25, 0), Vector(0, 0, 1), 0.5), math.radians(180), math.radians(360)), False)
sketch7.addGeometry(Part.LineSegment(Vector(6.2, 13.25, 0), Vector(6.5, 13.25, 0)), False)
sketch7.addGeometry(Part.ArcOfCircle(Part.Circle(Vector(6.5, 12.75, 0), Vector(0, 0, 1), 0.5), math.radians(0), math.radians(90)), False)
sketch7.addGeometry(Part.LineSegment(Vector(7, 12.75, 0), Vector(7, 11.25, 0)), False)
sketch7.addGeometry(Part.LineSegment(Vector(-2.75, 11.25, 0), Vector(-7, 11.25, 0)), False)
sketch7.addGeometry(Part.LineSegment(Vector(-7, 11.25, 0), Vector(-7, 12.75, 0)), False)
sketch7.addGeometry(Part.ArcOfCircle(Part.Circle(Vector(-6.5, 12.75, 0), Vector(0, 0, 1), 0.5), math.radians(90), math.radians(180)), False)
sketch7.addGeometry(Part.LineSegment(Vector(-6.5, 13.25, 0), Vector(-6.2, 13.25, 0)), False)
sketch7.addGeometry(Part.ArcOfCircle(Part.Circle(Vector(-5.7, 13.25, 0), Vector(0, 0, 1), 0.5), math.radians(180), math.radians(360)), False)
sketch7.addGeometry(Part.LineSegment(Vector(-5.2, 13.25, 0), Vector(-3.25, 13.25, 0)), False)
sketch7.addGeometry(Part.ArcOfCircle(Part.Circle(Vector(-3.25, 12.75, 0), Vector(0, 0, 1), 0.5), math.radians(0), math.radians(90)), False)
sketch7.addGeometry(Part.LineSegment(Vector(-2.75, 12.75, 0), Vector(-2.75, 11.25, 0)), False)
sketch7.addConstraint(Sketcher.Constraint("Coincident", 0, 2, 1, 1))
sketch7.addConstraint(Sketcher.Constraint("Tangent", 1, 2, 2, 2))
sketch7.addConstraint(Sketcher.Constraint("Tangent", 2, 1, 3, 1))
sketch7.addConstraint(Sketcher.Constraint("Coincident", 3, 2, 4, 1))
sketch7.addConstraint(Sketcher.Constraint("Coincident", 4, 2, 5, 1))
sketch7.addConstraint(Sketcher.Constraint("Tangent", 5, 2, 6, 2))
sketch7.addConstraint(Sketcher.Constraint("Tangent", 6, 1, 7, 1))
sketch7.addConstraint(Sketcher.Constraint("Coincident", 7, 2, 0, 1))
sketch7.addConstraint(Sketcher.Constraint("Coincident", 8, 2, 9, 1))
sketch7.addConstraint(Sketcher.Constraint("Tangent", 9, 2, 10, 2))
sketch7.addConstraint(Sketcher.Constraint("Tangent", 10, 1, 11, 1))
sketch7.addConstraint(Sketcher.Constraint("Coincident", 11, 2, 12, 1))
sketch7.addConstraint(Sketcher.Constraint("Coincident", 12, 2, 13, 1))
sketch7.addConstraint(Sketcher.Constraint("Tangent", 13, 2, 14, 2))
sketch7.addConstraint(Sketcher.Constraint("Tangent", 14, 1, 15, 1))
sketch7.addConstraint(Sketcher.Constraint("Coincident", 15, 2, 8, 1))
sketch7.addConstraint(Sketcher.Constraint("Coincident", 16, 2, 17, 1))
sketch7.addConstraint(Sketcher.Constraint("Tangent", 17, 2, 18, 2))
sketch7.addConstraint(Sketcher.Constraint("Tangent", 18, 1, 19, 1))
sketch7.addConstraint(Sketcher.Constraint("Coincident", 19, 2, 20, 1))
sketch7.addConstraint(Sketcher.Constraint("Coincident", 20, 2, 21, 1))
sketch7.addConstraint(Sketcher.Constraint("Tangent", 21, 2, 22, 2))
sketch7.addConstraint(Sketcher.Constraint("Tangent", 22, 1, 23, 1))
sketch7.addConstraint(Sketcher.Constraint("Coincident", 23, 2, 16, 1))
sketch7.addConstraint(Sketcher.Constraint("Coincident", 24, 2, 25, 1))
sketch7.addConstraint(Sketcher.Constraint("Tangent", 25, 2, 26, 2))
sketch7.addConstraint(Sketcher.Constraint("Tangent", 26, 1, 27, 1))
sketch7.addConstraint(Sketcher.Constraint("Coincident", 27, 2, 28, 1))
sketch7.addConstraint(Sketcher.Constraint("Coincident", 28, 2, 29, 1))
sketch7.addConstraint(Sketcher.Constraint("Tangent", 29, 2, 30, 2))
sketch7.addConstraint(Sketcher.Constraint("Tangent", 30, 1, 31, 1))
sketch7.addConstraint(Sketcher.Constraint("Coincident", 31, 2, 24, 1))
sketch7.addConstraint(Sketcher.Constraint("Horizontal", 0))
sketch7.addConstraint(Sketcher.Constraint("Vertical", 1))
sketch7.addConstraint(Sketcher.Constraint("Horizontal", 3))
sketch7.addConstraint(Sketcher.Constraint("Horizontal", 5))
sketch7.addConstraint(Sketcher.Constraint("Vertical", 7))
sketch7.addConstraint(Sketcher.Constraint("Horizontal", 8))
sketch7.addConstraint(Sketcher.Constraint("Vertical", 9))
sketch7.addConstraint(Sketcher.Constraint("Horizontal", 11))
sketch7.addConstraint(Sketcher.Constraint("Horizontal", 13))
sketch7.addConstraint(Sketcher.Constraint("Vertical", 15))
sketch7.addConstraint(Sketcher.Constraint("Horizontal", 16))
sketch7.addConstraint(Sketcher.Constraint("Vertical", 17))
sketch7.addConstraint(Sketcher.Constraint("Horizontal", 19))
sketch7.addConstraint(Sketcher.Constraint("Horizontal", 21))
sketch7.addConstraint(Sketcher.Constraint("Vertical", 23))
sketch7.addConstraint(Sketcher.Constraint("Horizontal", 24))
sketch7.addConstraint(Sketcher.Constraint("Vertical", 25))
sketch7.addConstraint(Sketcher.Constraint("Horizontal", 27))
sketch7.addConstraint(Sketcher.Constraint("Horizontal", 29))
sketch7.addConstraint(Sketcher.Constraint("Vertical", 31))
sketch7.addConstraint(Sketcher.Constraint("Equal", 2, 4))
sketch7.addConstraint(Sketcher.Constraint("Equal", 4, 6))
sketch7.addConstraint(Sketcher.Constraint("Equal", 6, 10))
sketch7.addConstraint(Sketcher.Constraint("Equal", 10, 12))
sketch7.addConstraint(Sketcher.Constraint("Equal", 12, 14))
sketch7.addConstraint(Sketcher.Constraint("Equal", 14, 18))
sketch7.addConstraint(Sketcher.Constraint("Equal", 18, 20))
sketch7.addConstraint(Sketcher.Constraint("Equal", 20, 22))
sketch7.addConstraint(Sketcher.Constraint("Equal", 22, 26))
sketch7.addConstraint(Sketcher.Constraint("Equal", 26, 28))
sketch7.addConstraint(Sketcher.Constraint("Equal", 28, 30))
sketch7.addConstraint(Sketcher.Constraint("Symmetric", 2, 3, 18, 3, -1, 1))
sketch7.addConstraint(Sketcher.Constraint("Symmetric", 4, 3, 20, 3, -1, 1))
sketch7.addConstraint(Sketcher.Constraint("Symmetric", 6, 3, 22, 3, -1, 1))
sketch7.addConstraint(Sketcher.Constraint("Symmetric", 10, 3, 26, 3, -1, 1))
sketch7.addConstraint(Sketcher.Constraint("Symmetric", 12, 3, 28, 3, -1, 1))
sketch7.addConstraint(Sketcher.Constraint("Symmetric", 14, 3, 30, 3, -1, 1))
sketch7.addConstraint(Sketcher.Constraint("Symmetric", 6, 3, 10, 3, -2))
sketch7.addConstraint(Sketcher.Constraint("Symmetric", 4, 3, 12, 3, -2))
sketch7.addConstraint(Sketcher.Constraint("Symmetric", 2, 3, 14, 3, -2))
sketch7.addConstraint(Sketcher.Constraint("Horizontal", 2, 3, 6, 3))
sketch7.addConstraint(Sketcher.Constraint("Horizontal", 12, 3, 2, 1))
sketch7.addConstraint(Sketcher.Constraint("Horizontal", 7, 2, 8, 2))
sketch7.addConstraint(Sketcher.Constraint("Horizontal", 23, 2, 24, 2))
sketch7.addConstraint(Sketcher.Constraint("Equal", 15, 17))
sketch7.addConstraint(Sketcher.Constraint("Radius", 2, Q("0.5 mm")))
sketch7.addConstraint(Sketcher.Constraint("DistanceX", 5, 2, 5, 1, Q("0.3 mm")))
sketch7.addConstraint(Sketcher.Constraint("DistanceY", 1, 2, 1, 1, Q("1.5 mm")))
sketch7.addConstraint(Sketcher.Constraint("DistanceX", 6, 1, -1, 1, Q("7 mm")))
sketch7.addConstraint(Sketcher.Constraint("DistanceY", 12, 3, 18, 3, Q("26 mm")))
sketch7.addConstraint(Sketcher.Constraint("DistanceX", 0, 2, 14, 3, Q("6 mm")))
sketch7.setExpression("Constraints[77]", "Params.sketch7_radius")
sketch7.setExpression("Constraints[78]", "Params.sketch7_width")
sketch7.setExpression("Constraints[79]", "Params.sketch7_height")
pad5 = doc.addObject("PartDesign::Pad", "Pad004")
body.addObject(pad5)
pad5.Profile = sketch7
pad5.setExpression("Length", "Params.pad5_length")
pad5.Reversed = True

# Sketch on XZ plane
sketch8 = doc.addObject("Sketcher::SketchObject", "Sketch007")
body.addObject(sketch8)
sketch8.AttachmentSupport = (doc.XZ_Plane, [""])
sketch8.MapMode = "FlatFace"
sketch8.AttachmentOffset = App.Placement(Vector(0, 0, -18), App.Rotation())
sketch8.addGeometry(Part.Circle(Vector(4, 12.25, 0), Vector(0, 0, 1), 0.4), False)
sketch8.addGeometry(Part.Circle(Vector(-4, 12.25, 0), Vector(0, 0, 1), 0.4), False)
sketch8.addGeometry(Part.Circle(Vector(-4, -12.25, 0), Vector(0, 0, 1), 0.4), False)
sketch8.addGeometry(Part.Circle(Vector(4, -12.25, 0), Vector(0, 0, 1), 0.4), False)
sketch8.addConstraint(Sketcher.Constraint("Equal", 0, 1))
sketch8.addConstraint(Sketcher.Constraint("Equal", 1, 2))
sketch8.addConstraint(Sketcher.Constraint("Equal", 2, 3))
sketch8.addConstraint(Sketcher.Constraint("Symmetric", 0, 3, 2, 3, -1, 1))
sketch8.addConstraint(Sketcher.Constraint("Symmetric", 1, 3, 3, 3, -1, 1))
sketch8.addConstraint(Sketcher.Constraint("Symmetric", 0, 3, 1, 3, -2))
sketch8.addConstraint(Sketcher.Constraint("Diameter", 0, Q("0.8 mm")))
sketch8.addConstraint(Sketcher.Constraint("DistanceX", -1, 1, 0, 3, Q("4 mm")))
sketch8.addConstraint(Sketcher.Constraint("DistanceY", 2, 3, 1, 3, Q("24.5 mm")))
sketch8.setExpression("Constraints[6]", "Params.sketch8_diameter")
pad6 = doc.addObject("PartDesign::Pad", "Pad005")
body.addObject(pad6)
pad6.Profile = sketch8
pad6.setExpression("Length", "Params.pad6_length")
pad6.Reversed = True

# Sketch on XY plane
sketch9 = doc.addObject("Sketcher::SketchObject", "Sketch008")
body.addObject(sketch9)
sketch9.AttachmentSupport = (doc.XY_Plane, [""])
sketch9.MapMode = "FlatFace"
sketch9.addGeometry(Part.LineSegment(Vector(-14, 18, 0), Vector(-14, 0, 0)), False)
sketch9.addGeometry(Part.LineSegment(Vector(-14, 0, 0), Vector(14, 0, 0)), False)
sketch9.addGeometry(Part.LineSegment(Vector(14, 0, 0), Vector(14, 18, 0)), False)
sketch9.addGeometry(Part.LineSegment(Vector(14, 18, 0), Vector(-14, 18, 0)), False)
sketch9.addGeometry(Part.LineSegment(Vector(14, 0, 0), Vector(-14, 0, 0)), False)
sketch9.addGeometry(Part.LineSegment(Vector(-14, 0, 0), Vector(-14, 18, 0)), False)
sketch9.addGeometry(Part.LineSegment(Vector(-14, 18, 0), Vector(14, 18, 0)), False)
sketch9.addGeometry(Part.LineSegment(Vector(14, 18, 0), Vector(14, 0, 0)), False)
sketch9.addConstraint(Sketcher.Constraint("Coincident", 0, 2, 1, 1))
sketch9.addConstraint(Sketcher.Constraint("Coincident", 1, 2, 2, 1))
sketch9.addConstraint(Sketcher.Constraint("Coincident", 2, 2, 3, 1))
sketch9.addConstraint(Sketcher.Constraint("Coincident", 3, 2, 0, 1))
sketch9.addConstraint(Sketcher.Constraint("Coincident", 4, 2, 5, 1))
sketch9.addConstraint(Sketcher.Constraint("Coincident", 5, 2, 6, 1))
sketch9.addConstraint(Sketcher.Constraint("Coincident", 6, 2, 7, 1))
sketch9.addConstraint(Sketcher.Constraint("Coincident", 7, 2, 4, 1))
sketch9.addConstraint(Sketcher.Constraint("Vertical", 0))
sketch9.addConstraint(Sketcher.Constraint("Horizontal", 1))
sketch9.addConstraint(Sketcher.Constraint("Vertical", 2))
sketch9.addConstraint(Sketcher.Constraint("Horizontal", 3))
sketch9.addConstraint(Sketcher.Constraint("Horizontal", 4))
sketch9.addConstraint(Sketcher.Constraint("Vertical", 5))
sketch9.addConstraint(Sketcher.Constraint("Horizontal", 6))
sketch9.addConstraint(Sketcher.Constraint("Vertical", 7))
sketch9.addConstraint(Sketcher.Constraint("Symmetric", 4, 2, 7, 2, -1, 1))
sketch9.addConstraint(Sketcher.Constraint("DistanceY", 0, 2, 0, 1, Q("18 mm")))
sketch9.addConstraint(Sketcher.Constraint("DistanceX", 1, 1, 1, 2, Q("27.7 mm")))
sketch9.addConstraint(Sketcher.Constraint("DistanceX", 4, 2, 4, 1, Q("27.5 mm")))
sketch9.addConstraint(Sketcher.Constraint("DistanceY", 5, 1, 5, 2, Q("17.8 mm")))
sketch9.addConstraint(Sketcher.Constraint("DistanceY", 0, 2, -1, 1, Q("0.1 mm")))
sketch9.addConstraint(Sketcher.Constraint("DistanceX", 0, 2, 4, 2, Q("0.1 mm")))
sketch9.setExpression("Constraints[17]", "Params.sketch9_height")
sketch9.setExpression("Constraints[18]", "Params.sketch9_width")
sketch9.setExpression("Constraints[19]", "Params.sketch9_width2")
sketch9.setExpression("Constraints[20]", "Params.sketch9_height2")
pad7 = doc.addObject("PartDesign::Pad", "Pad006")
body.addObject(pad7)
pad7.Profile = sketch9
pad7.setExpression("Length", "Params.pad7_length")
pad7.Midplane = True

doc.recompute()
